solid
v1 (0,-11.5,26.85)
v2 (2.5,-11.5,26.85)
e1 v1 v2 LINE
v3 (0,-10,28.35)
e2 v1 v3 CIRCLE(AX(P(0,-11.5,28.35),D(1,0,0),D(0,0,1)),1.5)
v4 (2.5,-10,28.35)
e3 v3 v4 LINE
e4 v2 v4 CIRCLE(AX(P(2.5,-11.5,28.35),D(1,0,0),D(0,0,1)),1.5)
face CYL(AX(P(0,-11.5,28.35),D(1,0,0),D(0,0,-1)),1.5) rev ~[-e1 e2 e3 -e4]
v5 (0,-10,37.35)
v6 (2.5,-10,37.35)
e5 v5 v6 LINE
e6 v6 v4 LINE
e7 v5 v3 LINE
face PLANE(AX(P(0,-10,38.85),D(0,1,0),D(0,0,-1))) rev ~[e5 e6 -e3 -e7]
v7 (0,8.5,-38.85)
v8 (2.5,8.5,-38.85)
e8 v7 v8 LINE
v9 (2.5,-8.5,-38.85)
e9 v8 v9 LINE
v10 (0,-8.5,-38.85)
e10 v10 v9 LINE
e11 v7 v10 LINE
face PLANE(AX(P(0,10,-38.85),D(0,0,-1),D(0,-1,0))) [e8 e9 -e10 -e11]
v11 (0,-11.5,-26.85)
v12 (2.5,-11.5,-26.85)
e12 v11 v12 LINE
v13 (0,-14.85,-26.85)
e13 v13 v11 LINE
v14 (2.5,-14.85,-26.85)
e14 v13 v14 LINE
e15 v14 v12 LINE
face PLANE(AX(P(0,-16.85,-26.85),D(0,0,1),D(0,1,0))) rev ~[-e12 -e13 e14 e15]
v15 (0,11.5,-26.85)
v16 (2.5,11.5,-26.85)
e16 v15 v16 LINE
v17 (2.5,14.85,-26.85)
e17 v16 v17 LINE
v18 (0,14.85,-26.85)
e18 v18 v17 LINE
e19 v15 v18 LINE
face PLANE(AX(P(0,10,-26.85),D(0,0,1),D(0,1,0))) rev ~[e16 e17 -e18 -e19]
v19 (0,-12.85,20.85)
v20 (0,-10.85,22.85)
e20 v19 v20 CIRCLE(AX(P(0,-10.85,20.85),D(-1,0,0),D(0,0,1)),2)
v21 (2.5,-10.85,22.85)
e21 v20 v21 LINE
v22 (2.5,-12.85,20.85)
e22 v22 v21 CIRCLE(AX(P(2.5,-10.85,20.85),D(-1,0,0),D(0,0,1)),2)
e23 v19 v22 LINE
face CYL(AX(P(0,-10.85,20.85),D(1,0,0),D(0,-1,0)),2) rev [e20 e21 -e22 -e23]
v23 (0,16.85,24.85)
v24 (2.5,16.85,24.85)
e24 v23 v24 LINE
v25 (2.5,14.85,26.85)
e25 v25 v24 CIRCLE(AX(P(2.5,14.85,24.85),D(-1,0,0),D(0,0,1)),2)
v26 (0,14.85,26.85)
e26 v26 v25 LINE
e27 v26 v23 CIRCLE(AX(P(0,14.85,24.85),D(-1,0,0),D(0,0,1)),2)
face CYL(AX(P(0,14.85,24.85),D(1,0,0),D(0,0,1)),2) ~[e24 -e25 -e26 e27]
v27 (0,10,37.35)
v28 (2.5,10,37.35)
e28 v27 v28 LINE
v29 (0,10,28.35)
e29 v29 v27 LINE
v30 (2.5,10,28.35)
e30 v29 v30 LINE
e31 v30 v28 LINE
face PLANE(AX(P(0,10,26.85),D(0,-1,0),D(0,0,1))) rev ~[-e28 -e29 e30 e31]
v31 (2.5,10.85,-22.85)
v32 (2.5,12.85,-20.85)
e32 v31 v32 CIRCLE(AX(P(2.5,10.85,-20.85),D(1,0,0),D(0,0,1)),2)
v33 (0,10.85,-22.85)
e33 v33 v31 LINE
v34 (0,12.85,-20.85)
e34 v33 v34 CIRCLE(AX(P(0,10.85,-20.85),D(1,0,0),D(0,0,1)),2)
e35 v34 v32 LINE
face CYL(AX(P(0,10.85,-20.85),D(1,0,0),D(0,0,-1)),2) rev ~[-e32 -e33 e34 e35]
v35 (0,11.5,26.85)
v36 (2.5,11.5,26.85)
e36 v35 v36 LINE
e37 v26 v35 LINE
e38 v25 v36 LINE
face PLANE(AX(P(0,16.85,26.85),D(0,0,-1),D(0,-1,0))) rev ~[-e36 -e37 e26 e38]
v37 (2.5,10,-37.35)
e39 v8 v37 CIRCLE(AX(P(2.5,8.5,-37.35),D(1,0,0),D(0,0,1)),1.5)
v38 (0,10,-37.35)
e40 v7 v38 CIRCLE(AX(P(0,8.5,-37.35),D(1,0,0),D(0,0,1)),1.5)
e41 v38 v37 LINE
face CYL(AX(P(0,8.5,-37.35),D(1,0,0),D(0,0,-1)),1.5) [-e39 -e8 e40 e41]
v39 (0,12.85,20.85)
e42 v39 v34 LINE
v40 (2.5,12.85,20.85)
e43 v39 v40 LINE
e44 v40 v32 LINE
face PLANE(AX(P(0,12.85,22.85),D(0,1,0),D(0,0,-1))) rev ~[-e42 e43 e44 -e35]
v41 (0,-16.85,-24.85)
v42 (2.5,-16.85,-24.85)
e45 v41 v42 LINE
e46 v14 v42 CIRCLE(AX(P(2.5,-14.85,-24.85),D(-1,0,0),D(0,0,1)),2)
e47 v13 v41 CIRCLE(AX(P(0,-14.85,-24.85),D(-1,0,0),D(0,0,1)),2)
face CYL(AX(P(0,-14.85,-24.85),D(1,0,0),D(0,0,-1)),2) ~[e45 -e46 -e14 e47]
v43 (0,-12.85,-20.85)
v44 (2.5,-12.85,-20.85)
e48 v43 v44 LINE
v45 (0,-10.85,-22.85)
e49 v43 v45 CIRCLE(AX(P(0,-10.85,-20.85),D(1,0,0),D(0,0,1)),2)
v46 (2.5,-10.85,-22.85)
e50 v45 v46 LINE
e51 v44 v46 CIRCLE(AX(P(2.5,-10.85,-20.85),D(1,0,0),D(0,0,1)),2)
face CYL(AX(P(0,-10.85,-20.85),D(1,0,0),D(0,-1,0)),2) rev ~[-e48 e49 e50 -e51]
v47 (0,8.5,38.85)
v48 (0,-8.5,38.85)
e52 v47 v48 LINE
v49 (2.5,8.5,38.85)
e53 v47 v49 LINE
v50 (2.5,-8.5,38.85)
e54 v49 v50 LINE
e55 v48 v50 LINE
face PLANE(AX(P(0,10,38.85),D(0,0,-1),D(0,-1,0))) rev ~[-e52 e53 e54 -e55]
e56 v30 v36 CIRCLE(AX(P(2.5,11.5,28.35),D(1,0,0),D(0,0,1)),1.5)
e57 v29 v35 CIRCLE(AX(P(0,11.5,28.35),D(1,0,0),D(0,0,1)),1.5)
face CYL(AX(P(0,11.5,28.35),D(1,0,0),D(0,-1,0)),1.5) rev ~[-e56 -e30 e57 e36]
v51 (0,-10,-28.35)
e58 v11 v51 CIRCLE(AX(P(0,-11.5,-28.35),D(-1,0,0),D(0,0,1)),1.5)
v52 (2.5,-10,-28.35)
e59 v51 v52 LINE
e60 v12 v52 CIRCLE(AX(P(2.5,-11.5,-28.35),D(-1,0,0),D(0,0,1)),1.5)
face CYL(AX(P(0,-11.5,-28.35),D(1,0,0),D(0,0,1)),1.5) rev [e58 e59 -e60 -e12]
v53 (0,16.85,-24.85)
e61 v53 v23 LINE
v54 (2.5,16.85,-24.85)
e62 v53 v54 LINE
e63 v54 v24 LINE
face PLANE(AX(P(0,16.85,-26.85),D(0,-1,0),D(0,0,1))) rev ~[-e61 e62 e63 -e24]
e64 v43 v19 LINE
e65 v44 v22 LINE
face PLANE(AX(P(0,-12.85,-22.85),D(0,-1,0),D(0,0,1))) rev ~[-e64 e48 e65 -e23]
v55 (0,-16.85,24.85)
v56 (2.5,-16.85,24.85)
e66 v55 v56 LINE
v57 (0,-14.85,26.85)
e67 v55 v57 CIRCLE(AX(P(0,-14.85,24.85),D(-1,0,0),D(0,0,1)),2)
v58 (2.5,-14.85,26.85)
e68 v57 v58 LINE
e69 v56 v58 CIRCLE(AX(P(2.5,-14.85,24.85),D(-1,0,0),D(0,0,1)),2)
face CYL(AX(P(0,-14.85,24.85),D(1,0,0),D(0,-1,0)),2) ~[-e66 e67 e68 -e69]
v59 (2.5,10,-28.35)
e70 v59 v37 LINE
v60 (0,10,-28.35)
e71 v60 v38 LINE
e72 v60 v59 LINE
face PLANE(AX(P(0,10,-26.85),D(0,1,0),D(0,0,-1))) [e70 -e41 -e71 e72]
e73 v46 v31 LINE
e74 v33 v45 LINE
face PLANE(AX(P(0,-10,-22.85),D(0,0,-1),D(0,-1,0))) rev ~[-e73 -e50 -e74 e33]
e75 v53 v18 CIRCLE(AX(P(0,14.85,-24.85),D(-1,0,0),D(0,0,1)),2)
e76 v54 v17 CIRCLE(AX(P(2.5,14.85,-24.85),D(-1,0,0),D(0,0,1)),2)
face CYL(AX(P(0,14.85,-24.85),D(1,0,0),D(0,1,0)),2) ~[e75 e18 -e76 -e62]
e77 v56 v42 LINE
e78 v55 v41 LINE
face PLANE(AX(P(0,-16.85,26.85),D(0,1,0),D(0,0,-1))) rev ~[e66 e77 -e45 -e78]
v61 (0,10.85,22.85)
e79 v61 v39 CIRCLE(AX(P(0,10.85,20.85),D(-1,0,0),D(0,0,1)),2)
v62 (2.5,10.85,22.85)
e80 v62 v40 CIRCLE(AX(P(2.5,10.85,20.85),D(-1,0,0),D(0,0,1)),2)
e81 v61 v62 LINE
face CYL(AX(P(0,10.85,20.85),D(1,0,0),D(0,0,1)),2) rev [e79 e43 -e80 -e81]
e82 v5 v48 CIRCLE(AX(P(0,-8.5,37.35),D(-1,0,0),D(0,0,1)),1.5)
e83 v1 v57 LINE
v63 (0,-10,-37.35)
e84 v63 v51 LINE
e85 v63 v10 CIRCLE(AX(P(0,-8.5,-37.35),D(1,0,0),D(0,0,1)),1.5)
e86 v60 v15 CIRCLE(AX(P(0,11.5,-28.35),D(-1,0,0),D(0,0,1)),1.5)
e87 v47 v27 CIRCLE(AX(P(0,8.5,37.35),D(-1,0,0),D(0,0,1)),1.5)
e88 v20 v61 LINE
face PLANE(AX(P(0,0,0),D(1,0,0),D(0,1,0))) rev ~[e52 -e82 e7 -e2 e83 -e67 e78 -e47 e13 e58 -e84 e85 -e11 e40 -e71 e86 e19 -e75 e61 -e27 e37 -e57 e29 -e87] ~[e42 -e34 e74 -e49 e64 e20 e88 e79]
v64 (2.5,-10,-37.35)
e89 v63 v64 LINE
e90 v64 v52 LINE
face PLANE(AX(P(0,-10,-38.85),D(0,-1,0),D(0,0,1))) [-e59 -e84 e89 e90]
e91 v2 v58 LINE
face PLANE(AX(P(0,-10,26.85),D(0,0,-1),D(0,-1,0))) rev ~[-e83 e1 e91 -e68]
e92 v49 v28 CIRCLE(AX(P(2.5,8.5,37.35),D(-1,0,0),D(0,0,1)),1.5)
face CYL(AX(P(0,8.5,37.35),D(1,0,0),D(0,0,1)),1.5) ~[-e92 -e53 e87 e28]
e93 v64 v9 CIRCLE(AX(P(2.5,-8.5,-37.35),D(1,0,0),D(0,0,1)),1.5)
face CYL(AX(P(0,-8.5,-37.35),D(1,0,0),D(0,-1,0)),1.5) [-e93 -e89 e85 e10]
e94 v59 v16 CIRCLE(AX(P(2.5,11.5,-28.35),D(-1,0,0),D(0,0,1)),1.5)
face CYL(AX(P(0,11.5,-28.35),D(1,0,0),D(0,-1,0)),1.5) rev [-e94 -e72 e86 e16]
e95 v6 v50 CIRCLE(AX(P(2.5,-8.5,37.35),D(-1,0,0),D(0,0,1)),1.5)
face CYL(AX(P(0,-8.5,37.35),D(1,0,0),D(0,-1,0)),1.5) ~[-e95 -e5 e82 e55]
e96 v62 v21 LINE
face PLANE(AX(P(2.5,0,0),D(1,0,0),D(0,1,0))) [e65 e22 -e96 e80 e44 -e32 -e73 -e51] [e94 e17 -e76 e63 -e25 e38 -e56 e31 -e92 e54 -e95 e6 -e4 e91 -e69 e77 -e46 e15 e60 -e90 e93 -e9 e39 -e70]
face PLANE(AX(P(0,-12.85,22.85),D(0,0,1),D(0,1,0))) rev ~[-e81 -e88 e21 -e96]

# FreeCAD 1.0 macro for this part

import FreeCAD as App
import Part
import Sketcher

V = App.Vector
Q = App.Units.Quantity


def edges_at(feature, points):
    """Names of the edges that pass closest to the given points."""
    edges = feature.Shape.Edges
    near = lambda p: min(range(len(edges)), key=lambda i: edges[i].distToShape(Part.Vertex(*p))[0])
    return sorted({f"Edge{near(p) + 1}" for p in points})

doc = App.newDocument("Part")
body = doc.addObject("PartDesign::Body", "Body")

sketch1 = body.newObject("Sketcher::SketchObject", "Sketch")
sketch1.AttachmentSupport = (doc.getObject("YZ_Plane"), [""])
sketch1.MapMode = "FlatFace"
sketch1.addGeometry(Part.LineSegment(V(-17, -27, 0), V(-10, -27, 0)), False)
sketch1.addGeometry(Part.LineSegment(V(-10, -27, 0), V(-10, -39, 0)), False)
sketch1.addGeometry(Part.LineSegment(V(-10, -39, 0), V(10, -39, 0)), False)
sketch1.addGeometry(Part.LineSegment(V(10, -39, 0), V(10, -27, 0)), False)
sketch1.addGeometry(Part.LineSegment(V(10, -27, 0), V(17, -27, 0)), False)
sketch1.addGeometry(Part.LineSegment(V(17, -27, 0), V(17, 27, 0)), False)
sketch1.addGeometry(Part.LineSegment(V(17, 27, 0), V(10, 27, 0)), False)
sketch1.addGeometry(Part.LineSegment(V(10, 27, 0), V(10, 39, 0)), False)
sketch1.addGeometry(Part.LineSegment(V(10, 39, 0), V(-10, 39, 0)), False)
sketch1.addGeometry(Part.LineSegment(V(-10, 39, 0), V(-10, 27, 0)), False)
sketch1.addGeometry(Part.LineSegment(V(-10, 27, 0), V(-17, 27, 0)), False)
sketch1.addGeometry(Part.LineSegment(V(-17, 27, 0), V(-17, -27, 0)), False)
sketch1.addGeometry(Part.LineSegment(V(-13, -23, 0), V(-13, 23, 0)), False)
sketch1.addGeometry(Part.LineSegment(V(-13, 23, 0), V(13, 23, 0)), False)
sketch1.addGeometry(Part.LineSegment(V(13, 23, 0), V(13, -23, 0)), False)
sketch1.addGeometry(Part.LineSegment(V(13, -23, 0), V(-13, -23, 0)), False)
sketch1.addConstraint(Sketcher.Constraint("Coincident", 0, 2, 1, 1))
sketch1.addConstraint(Sketcher.Constraint("Coincident", 1, 2, 2, 1))
sketch1.addConstraint(Sketcher.Constraint("Coincident", 2, 2, 3, 1))
sketch1.addConstraint(Sketcher.Constraint("Coincident", 3, 2, 4, 1))
sketch1.addConstraint(Sketcher.Constraint("Coincident", 4, 2, 5, 1))
sketch1.addConstraint(Sketcher.Constraint("Coincident", 5, 2, 6, 1))
sketch1.addConstraint(Sketcher.Constraint("Coincident", 6, 2, 7, 1))
sketch1.addConstraint(Sketcher.Constraint("Coincident", 7, 2, 8, 1))
sketch1.addConstraint(Sketcher.Constraint("Coincident", 8, 2, 9, 1))
sketch1.addConstraint(Sketcher.Constraint("Coincident", 9, 2, 10, 1))
sketch1.addConstraint(Sketcher.Constraint("Coincident", 10, 2, 11, 1))
sketch1.addConstraint(Sketcher.Constraint("Coincident", 11, 2, 0, 1))
sketch1.addConstraint(Sketcher.Constraint("Coincident", 12, 2, 13, 1))
sketch1.addConstraint(Sketcher.Constraint("Coincident", 13, 2, 14, 1))
sketch1.addConstraint(Sketcher.Constraint("Coincident", 14, 2, 15, 1))
sketch1.addConstraint(Sketcher.Constraint("Coincident", 15, 2, 12, 1))
sketch1.addConstraint(Sketcher.Constraint("Horizontal", 0))
sketch1.addConstraint(Sketcher.Constraint("Vertical", 1))
sketch1.addConstraint(Sketcher.Constraint("Horizontal", 2))
sketch1.addConstraint(Sketcher.Constraint("Vertical", 3))
sketch1.addConstraint(Sketcher.Constraint("Horizontal", 4))
sketch1.addConstraint(Sketcher.Constraint("Vertical", 5))
sketch1.addConstraint(Sketcher.Constraint("Horizontal", 6))
sketch1.addConstraint(Sketcher.Constraint("Vertical", 7))
sketch1.addConstraint(Sketcher.Constraint("Horizontal", 8))
sketch1.addConstraint(Sketcher.Constraint("Vertical", 9))
sketch1.addConstraint(Sketcher.Constraint("Horizontal", 10))
sketch1.addConstraint(Sketcher.Constraint("Vertical", 11))
sketch1.addConstraint(Sketcher.Constraint("Vertical", 12))
sketch1.addConstraint(Sketcher.Constraint("Horizontal", 13))
sketch1.addConstraint(Sketcher.Constraint("Vertical", 14))
sketch1.addConstraint(Sketcher.Constraint("Horizontal", 15))
sketch1.addConstraint(Sketcher.Constraint("Symmetric", 0, 2, 6, 2, -1, 1))
sketch1.addConstraint(Sketcher.Constraint("Symmetric", 2, 2, 8, 2, -1, 1))
sketch1.addConstraint(Sketcher.Constraint("Symmetric", 4, 2, 10, 2, -1, 1))
sketch1.addConstraint(Sketcher.Constraint("Symmetric", 12, 2, 14, 2, -1, 1))
sketch1.addConstraint(Sketcher.Constraint("Symmetric", 0, 2, 3, 2, -2))
sketch1.addConstraint(Sketcher.Constraint("DistanceX", 2, 1, 2, 2, Q("20 mm")))
sketch1.addConstraint(Sketcher.Constraint("DistanceY", 1, 2, 1, 1, Q("12 mm")))
sketch1.addConstraint(Sketcher.Constraint("DistanceX", 13, 1, 13, 2, Q("25.7 mm")))
sketch1.addConstraint(Sketcher.Constraint("DistanceY", 12, 1, 12, 2, Q("45.7 mm")))
sketch1.addConstraint(Sketcher.Constraint("DistanceY", 12, 2, 9, 2, Q("4 mm")))
sketch1.addConstraint(Sketcher.Constraint("DistanceX", 10, 2, 12, 2, Q("4 mm")))
pad1 = body.newObject("PartDesign::Pad", "Pad")
pad1.Profile = sketch1
pad1.Length = 2.5
doc.recompute()

fillet = body.newObject("PartDesign::Fillet", "Fillet")
fillet.Base = (pad1, edges_at(pad1, [
    (1.25, 12.85, 22.85),
    (1.25, 12.85, -22.85),
    (1.25, -12.85, -22.85),
    (1.25, -12.85, 22.85),
    (1.25, -16.85, 26.85),
    (1.25, 16.85, 26.85),
    (1.25, -16.85, -26.85),
    (1.25, 16.85, -26.85),
]))
fillet.Radius = 2
doc.recompute()

fillet2 = body.newObject("PartDesign::Fillet", "Fillet001")
fillet2.Base = (fillet, edges_at(fillet, [
    (1.25, 10, 26.85),
    (1.25, 10, 38.85),
    (1.25, -10, 38.85),
    (1.25, -10, 26.85),
    (1.25, -10, -26.85),
    (1.25, -10, -38.85),
    (1.25, 10, -26.85),
    (1.25, 10, -38.85),
]))
fillet2.Radius = 1.5

doc.recompute()
